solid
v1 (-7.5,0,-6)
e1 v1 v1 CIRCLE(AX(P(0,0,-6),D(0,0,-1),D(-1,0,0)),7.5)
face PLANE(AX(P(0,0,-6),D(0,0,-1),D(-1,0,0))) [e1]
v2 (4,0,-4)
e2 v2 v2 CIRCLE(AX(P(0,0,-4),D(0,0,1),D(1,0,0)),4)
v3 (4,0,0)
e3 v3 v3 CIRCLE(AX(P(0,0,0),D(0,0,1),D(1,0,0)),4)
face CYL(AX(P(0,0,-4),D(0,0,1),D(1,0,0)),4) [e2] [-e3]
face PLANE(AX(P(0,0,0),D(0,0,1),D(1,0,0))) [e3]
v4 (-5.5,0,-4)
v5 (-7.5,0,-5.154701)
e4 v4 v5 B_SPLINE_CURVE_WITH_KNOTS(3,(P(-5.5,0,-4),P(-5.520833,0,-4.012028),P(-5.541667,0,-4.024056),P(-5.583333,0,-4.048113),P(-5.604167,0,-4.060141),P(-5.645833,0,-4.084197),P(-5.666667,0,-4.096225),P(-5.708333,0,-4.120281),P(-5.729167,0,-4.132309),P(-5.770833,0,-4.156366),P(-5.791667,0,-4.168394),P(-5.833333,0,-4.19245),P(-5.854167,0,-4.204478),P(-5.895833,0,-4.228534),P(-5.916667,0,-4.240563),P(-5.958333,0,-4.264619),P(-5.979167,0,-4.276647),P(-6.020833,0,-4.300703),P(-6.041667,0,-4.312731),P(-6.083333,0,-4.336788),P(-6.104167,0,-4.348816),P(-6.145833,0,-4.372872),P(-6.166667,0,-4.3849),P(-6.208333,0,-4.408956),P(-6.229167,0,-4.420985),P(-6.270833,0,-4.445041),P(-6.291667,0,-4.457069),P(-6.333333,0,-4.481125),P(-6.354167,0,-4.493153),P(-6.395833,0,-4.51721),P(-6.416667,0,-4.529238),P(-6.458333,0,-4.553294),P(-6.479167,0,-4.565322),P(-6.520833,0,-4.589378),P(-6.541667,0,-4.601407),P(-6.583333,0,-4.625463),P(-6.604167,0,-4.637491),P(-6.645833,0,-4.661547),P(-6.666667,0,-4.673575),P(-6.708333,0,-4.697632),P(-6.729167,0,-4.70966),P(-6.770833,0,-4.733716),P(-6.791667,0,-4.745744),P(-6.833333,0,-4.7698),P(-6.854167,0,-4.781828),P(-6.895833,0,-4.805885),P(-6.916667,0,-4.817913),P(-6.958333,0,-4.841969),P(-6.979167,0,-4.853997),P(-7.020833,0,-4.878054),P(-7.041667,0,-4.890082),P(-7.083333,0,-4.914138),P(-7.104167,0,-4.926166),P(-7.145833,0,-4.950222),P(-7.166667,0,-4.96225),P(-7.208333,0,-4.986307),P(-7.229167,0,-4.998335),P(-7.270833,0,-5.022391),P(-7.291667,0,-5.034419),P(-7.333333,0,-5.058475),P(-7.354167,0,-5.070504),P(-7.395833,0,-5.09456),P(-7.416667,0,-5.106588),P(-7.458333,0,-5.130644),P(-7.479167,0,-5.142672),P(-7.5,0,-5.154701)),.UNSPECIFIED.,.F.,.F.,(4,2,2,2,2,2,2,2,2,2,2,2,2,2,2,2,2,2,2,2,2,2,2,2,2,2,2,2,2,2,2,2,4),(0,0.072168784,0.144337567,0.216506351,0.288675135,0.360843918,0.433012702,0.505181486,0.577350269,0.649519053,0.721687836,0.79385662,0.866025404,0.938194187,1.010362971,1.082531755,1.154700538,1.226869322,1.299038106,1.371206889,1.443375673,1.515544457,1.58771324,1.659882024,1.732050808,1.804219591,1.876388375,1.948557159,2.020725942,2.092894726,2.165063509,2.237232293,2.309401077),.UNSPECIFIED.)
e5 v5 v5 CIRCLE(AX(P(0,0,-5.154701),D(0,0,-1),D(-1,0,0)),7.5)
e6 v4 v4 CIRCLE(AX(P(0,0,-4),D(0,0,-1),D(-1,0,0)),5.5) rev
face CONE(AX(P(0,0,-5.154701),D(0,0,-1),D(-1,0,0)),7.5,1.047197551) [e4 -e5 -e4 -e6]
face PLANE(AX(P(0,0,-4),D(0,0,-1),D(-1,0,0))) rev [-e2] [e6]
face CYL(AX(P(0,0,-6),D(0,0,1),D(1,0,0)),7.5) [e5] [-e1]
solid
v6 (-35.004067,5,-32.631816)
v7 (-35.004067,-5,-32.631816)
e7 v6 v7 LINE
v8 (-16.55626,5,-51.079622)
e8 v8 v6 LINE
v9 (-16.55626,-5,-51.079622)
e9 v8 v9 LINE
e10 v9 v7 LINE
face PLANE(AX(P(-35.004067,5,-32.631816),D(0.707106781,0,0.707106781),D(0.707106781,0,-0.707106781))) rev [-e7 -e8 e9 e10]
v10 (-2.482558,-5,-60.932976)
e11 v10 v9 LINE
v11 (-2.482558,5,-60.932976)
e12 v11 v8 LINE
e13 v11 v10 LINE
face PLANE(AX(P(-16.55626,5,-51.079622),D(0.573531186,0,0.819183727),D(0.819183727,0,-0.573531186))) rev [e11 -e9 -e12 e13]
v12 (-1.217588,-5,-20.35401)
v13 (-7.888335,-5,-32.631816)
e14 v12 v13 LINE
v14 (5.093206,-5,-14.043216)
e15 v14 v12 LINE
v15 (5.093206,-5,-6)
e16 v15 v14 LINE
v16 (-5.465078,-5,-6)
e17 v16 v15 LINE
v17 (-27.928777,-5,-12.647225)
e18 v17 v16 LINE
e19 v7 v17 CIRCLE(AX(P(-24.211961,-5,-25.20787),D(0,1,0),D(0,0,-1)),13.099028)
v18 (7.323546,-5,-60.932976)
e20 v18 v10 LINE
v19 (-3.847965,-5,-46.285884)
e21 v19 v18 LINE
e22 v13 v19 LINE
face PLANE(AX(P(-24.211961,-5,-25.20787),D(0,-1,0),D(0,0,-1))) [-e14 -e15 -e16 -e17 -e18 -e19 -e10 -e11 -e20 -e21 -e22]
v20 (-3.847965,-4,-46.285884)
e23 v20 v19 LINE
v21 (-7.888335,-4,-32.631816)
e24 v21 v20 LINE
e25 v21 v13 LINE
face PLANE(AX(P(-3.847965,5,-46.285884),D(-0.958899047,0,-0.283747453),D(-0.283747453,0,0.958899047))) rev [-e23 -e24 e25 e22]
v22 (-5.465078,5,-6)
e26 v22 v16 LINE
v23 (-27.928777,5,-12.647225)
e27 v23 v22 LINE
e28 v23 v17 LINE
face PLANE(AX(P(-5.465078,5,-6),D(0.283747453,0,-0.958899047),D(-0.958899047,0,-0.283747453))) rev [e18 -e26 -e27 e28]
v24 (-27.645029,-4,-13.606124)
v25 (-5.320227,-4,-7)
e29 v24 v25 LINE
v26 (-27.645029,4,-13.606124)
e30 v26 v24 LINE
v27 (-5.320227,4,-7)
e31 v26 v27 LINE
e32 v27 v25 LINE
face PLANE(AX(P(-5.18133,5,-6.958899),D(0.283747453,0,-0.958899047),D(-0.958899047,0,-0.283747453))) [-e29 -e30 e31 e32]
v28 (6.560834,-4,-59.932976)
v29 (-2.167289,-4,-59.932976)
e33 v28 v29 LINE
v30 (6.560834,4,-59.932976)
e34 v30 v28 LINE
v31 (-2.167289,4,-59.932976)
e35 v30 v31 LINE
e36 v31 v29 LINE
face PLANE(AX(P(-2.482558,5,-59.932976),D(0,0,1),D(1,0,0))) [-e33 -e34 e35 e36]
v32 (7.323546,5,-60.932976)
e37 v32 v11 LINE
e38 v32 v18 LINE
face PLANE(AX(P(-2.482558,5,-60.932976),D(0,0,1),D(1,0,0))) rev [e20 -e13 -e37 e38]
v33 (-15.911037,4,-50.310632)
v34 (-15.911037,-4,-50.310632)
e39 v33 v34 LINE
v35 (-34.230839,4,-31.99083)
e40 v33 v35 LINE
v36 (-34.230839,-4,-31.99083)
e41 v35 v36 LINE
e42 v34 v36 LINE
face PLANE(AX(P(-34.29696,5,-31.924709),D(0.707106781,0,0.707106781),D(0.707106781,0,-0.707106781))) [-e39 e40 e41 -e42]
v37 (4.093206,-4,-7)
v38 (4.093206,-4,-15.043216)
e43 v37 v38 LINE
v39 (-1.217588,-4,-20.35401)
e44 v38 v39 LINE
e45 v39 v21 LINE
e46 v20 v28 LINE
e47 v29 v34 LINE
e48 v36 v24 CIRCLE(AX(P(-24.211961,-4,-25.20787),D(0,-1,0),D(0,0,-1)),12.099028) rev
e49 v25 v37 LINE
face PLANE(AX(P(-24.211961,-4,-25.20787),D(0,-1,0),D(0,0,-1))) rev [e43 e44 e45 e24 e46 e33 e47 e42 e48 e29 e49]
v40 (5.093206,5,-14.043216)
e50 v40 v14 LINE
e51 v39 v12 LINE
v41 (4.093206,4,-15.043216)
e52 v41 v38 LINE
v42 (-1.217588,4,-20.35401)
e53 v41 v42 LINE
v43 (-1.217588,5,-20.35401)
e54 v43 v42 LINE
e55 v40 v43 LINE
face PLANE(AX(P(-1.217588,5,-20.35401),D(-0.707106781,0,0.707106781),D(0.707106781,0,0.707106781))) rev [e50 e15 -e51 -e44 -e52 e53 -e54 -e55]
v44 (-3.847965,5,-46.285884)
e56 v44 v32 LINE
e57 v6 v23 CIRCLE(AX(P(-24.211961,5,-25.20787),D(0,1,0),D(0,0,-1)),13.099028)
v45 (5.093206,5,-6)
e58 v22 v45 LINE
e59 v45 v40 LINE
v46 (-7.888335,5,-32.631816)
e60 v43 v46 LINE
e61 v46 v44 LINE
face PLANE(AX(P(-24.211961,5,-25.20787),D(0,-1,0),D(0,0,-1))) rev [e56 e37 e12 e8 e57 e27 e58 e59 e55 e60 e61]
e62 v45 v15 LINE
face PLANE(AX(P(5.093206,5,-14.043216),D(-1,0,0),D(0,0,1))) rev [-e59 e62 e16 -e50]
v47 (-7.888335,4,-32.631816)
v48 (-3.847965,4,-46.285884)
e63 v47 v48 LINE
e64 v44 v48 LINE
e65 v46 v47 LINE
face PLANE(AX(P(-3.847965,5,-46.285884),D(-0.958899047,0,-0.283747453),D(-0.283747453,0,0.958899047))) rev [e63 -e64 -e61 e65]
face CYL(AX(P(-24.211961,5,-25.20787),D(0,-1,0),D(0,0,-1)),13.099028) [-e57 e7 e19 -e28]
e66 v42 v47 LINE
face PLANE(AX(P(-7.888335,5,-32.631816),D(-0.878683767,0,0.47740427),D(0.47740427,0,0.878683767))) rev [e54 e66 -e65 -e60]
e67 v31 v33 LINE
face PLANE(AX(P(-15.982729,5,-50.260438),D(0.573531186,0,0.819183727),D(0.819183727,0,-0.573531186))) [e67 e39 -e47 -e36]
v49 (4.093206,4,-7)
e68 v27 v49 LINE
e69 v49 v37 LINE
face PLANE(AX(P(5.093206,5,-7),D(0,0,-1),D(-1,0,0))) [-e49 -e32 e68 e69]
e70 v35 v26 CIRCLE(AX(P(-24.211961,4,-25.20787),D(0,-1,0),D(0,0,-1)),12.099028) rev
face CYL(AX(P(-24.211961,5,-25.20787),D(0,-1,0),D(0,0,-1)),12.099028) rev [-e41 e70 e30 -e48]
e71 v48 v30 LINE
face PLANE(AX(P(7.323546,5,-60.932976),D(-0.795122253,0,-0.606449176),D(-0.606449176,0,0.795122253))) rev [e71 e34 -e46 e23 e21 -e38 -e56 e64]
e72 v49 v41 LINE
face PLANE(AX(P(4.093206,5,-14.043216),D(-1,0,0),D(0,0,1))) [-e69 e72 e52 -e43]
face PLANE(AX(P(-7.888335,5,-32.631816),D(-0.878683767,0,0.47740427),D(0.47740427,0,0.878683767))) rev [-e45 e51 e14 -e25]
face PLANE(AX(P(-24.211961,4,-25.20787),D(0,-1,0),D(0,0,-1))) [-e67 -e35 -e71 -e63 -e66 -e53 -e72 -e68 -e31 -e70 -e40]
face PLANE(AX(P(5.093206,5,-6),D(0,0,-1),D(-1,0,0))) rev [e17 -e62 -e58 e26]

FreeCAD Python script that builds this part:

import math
import FreeCAD as App
import Part
import Sketcher

V = App.Vector
Q = App.Units.Quantity


def edges_at(feature, points):
    """Names of the edges that pass closest to the given points."""
    edges = feature.Shape.Edges
    near = lambda p: min(range(len(edges)), key=lambda i: edges[i].distToShape(Part.Vertex(*p))[0])
    return sorted({f"Edge{near(p) + 1}" for p in points})


def faces_at(feature, points):
    """Names of the faces that lie closest to the given points."""
    faces = feature.Shape.Faces
    near = lambda p: min(range(len(faces)), key=lambda i: faces[i].distToShape(Part.Vertex(*p))[0])
    return sorted({f"Face{near(p) + 1}" for p in points})

doc = App.newDocument("Part")
body = doc.addObject("PartDesign::Body", "Body")

# Sketch on XY plane
sketch1 = body.newObject("Sketcher::SketchObject", "Sketch")
sketch1.AttachmentSupport = (doc.getObject("XY_Plane"), [""])
sketch1.MapMode = "FlatFace"
sketch1.addGeometry(Part.Circle(V(0, 0, 0), V(0, 0, 1), 4), False)
sketch1.addConstraint(Sketcher.Constraint("Coincident", 0, 3, -1, 1))
sketch1.addConstraint(Sketcher.Constraint("Diameter", 0, Q("8 mm")))
pad1 = body.newObject("PartDesign::Pad", "Pad")
pad1.Profile = sketch1
pad1.Length = 4
pad1.Reversed = True

# Sketch on XY plane
sketch2 = body.newObject("Sketcher::SketchObject", "Sketch001")
sketch2.AttachmentSupport = (doc.getObject("XY_Plane"), [""])
sketch2.MapMode = "FlatFace"
sketch2.AttachmentOffset = App.Placement(V(0, 0, -4), App.Rotation())
sketch2.addGeometry(Part.Circle(V(0, 0, 0), V(0, 0, 1), 8), False)
sketch2.addConstraint(Sketcher.Constraint("Coincident", 0, 3, -1, 1))
sketch2.addConstraint(Sketcher.Constraint("Diameter", 0, Q("15 mm")))
pad2 = body.newObject("PartDesign::Pad", "Pad001")
pad2.Profile = sketch2
pad2.Length = 2
pad2.Reversed = True
doc.recompute()

chamfer = body.newObject("PartDesign::Chamfer", "Chamfer")
chamfer.Base = (pad2, edges_at(pad2, [(7.5, 0, -4)]))
chamfer.ChamferType = "Two distances"
chamfer.Size = 2
chamfer.Size2 = 1.154701
body2 = doc.addObject("PartDesign::Body", "Body001")

# Sketch on XZ plane
sketch3 = body2.newObject("Sketcher::SketchObject", "Sketch002")
sketch3.AttachmentSupport = (doc.getObject("XZ_Plane001"), [""])
sketch3.MapMode = "FlatFace"
sketch3.addGeometry(Part.LineSegment(V(-5, -6, 0), V(5, -6, 0)), False)
sketch3.addGeometry(Part.LineSegment(V(5, -6, 0), V(5, -14, 0)), False)
sketch3.addGeometry(Part.LineSegment(V(5, -14, 0), V(-1, -20, 0)), False)
sketch3.addGeometry(Part.LineSegment(V(-1, -20, 0), V(-8, -33, 0)), False)
sketch3.addGeometry(Part.LineSegment(V(-8, -33, 0), V(-4, -46, 0)), False)
sketch3.addGeometry(Part.LineSegment(V(-4, -46, 0), V(7, -61, 0)), False)
sketch3.addGeometry(Part.LineSegment(V(7, -61, 0), V(-2, -61, 0)), False)
sketch3.addGeometry(Part.LineSegment(V(-2, -61, 0), V(-17, -51, 0)), False)
sketch3.addGeometry(Part.LineSegment(V(-17, -51, 0), V(-35, -33, 0)), False)
sketch3.addGeometry(Part.ArcOfCircle(Part.Circle(V(-24, -25, 0), V(0, 0, 1), 13), math.radians(106), math.radians(215)), False)
sketch3.addGeometry(Part.LineSegment(V(-28, -13, 0), V(-5, -6, 0)), False)
sketch3.addConstraint(Sketcher.Constraint("Coincident", 0, 2, 1, 1))
sketch3.addConstraint(Sketcher.Constraint("Coincident", 1, 2, 2, 1))
sketch3.addConstraint(Sketcher.Constraint("Coincident", 2, 2, 3, 1))
sketch3.addConstraint(Sketcher.Constraint("Coincident", 3, 2, 4, 1))
sketch3.addConstraint(Sketcher.Constraint("Coincident", 4, 2, 5, 1))
sketch3.addConstraint(Sketcher.Constraint("Coincident", 5, 2, 6, 1))
sketch3.addConstraint(Sketcher.Constraint("Coincident", 6, 2, 7, 1))
sketch3.addConstraint(Sketcher.Constraint("Coincident", 7, 2, 8, 1))
sketch3.addConstraint(Sketcher.Constraint("Coincident", 8, 2, 9, 2))
sketch3.addConstraint(Sketcher.Constraint("Tangent", 9, 1, 10, 1))
sketch3.addConstraint(Sketcher.Constraint("Coincident", 10, 2, 0, 1))
sketch3.addConstraint(Sketcher.Constraint("Horizontal", 0))
sketch3.addConstraint(Sketcher.Constraint("Vertical", 1))
sketch3.addConstraint(Sketcher.Constraint("Horizontal", 6))
sketch3.addConstraint(Sketcher.Constraint("Perpendicular", 2, 8))
sketch3.addConstraint(Sketcher.Constraint("Perpendicular", 4, 10))
sketch3.addConstraint(Sketcher.Constraint("Horizontal", 3, 2, 8, 2))
sketch3.addConstraint(Sketcher.Constraint("Angle", 2, Q("-135 deg")))
sketch3.addConstraint(Sketcher.Constraint("DistanceY", 0, 2, -1, 1, Q("6 mm")))
sketch3.addConstraint(Sketcher.Constraint("Radius", 9, Q("13.099028 mm")))
sketch3.addConstraint(Sketcher.Constraint("DistanceY", 3, 2, 1, 2, Q("18.5886 mm")))
sketch3.addConstraint(Sketcher.Constraint("DistanceX", 9, 3, 7, 2, Q("7.6557 mm")))
sketch3.addConstraint(Sketcher.Constraint("DistanceX", 8, 2, 4, 2, Q("31.156102 mm")))
sketch3.addConstraint(Sketcher.Constraint("DistanceX", 9, 1, 10, 2, Q("22.463699 mm")))
sketch3.addConstraint(Sketcher.Constraint("Distance", 2, Q("8.92481 mm")))
sketch3.addConstraint(Sketcher.Constraint("Distance", 3, Q("13.972952 mm")))
sketch3.addConstraint(Sketcher.Constraint("Distance", 4, Q("14.239318 mm")))
sketch3.addConstraint(Sketcher.Constraint("Distance", 5, Q("18.421182 mm")))
sketch3.addConstraint(Sketcher.Constraint("DistanceX", 0, 1, 0, 2, Q("10.558284 mm")))
sketch3.addConstraint(Sketcher.Constraint("DistanceX", 6, 2, 6, 1, Q("9.806104 mm")))
sketch3.addConstraint(Sketcher.Constraint("DistanceY", 1, 2, 1, 1, Q("8.043216 mm")))
sketch3.addConstraint(Sketcher.Constraint("DistanceX", 9, 3, -1, 1, Q("24.211961 mm")))
sketch3.addConstraint(Sketcher.Constraint("DistanceX", 4, 2, 5, 2, Q("11.171511 mm")))
pad3 = body2.newObject("PartDesign::Pad", "Pad002")
pad3.Profile = sketch3
pad3.Length = 10
pad3.Midplane = True
doc.recompute()

thickness = body2.newObject("PartDesign::Thickness", "Thickness")
thickness.Base = (pad3, faces_at(pad3, [
    (1.738, 0, -53.609),
    (-5.868, 0, -39.459),
    (-4.553, 0, -26.493),
    (1.938, 0, -17.199),
]))
thickness.Value = 1
thickness.Reversed = True
thickness.Join = "Intersection"

doc.recompute()
